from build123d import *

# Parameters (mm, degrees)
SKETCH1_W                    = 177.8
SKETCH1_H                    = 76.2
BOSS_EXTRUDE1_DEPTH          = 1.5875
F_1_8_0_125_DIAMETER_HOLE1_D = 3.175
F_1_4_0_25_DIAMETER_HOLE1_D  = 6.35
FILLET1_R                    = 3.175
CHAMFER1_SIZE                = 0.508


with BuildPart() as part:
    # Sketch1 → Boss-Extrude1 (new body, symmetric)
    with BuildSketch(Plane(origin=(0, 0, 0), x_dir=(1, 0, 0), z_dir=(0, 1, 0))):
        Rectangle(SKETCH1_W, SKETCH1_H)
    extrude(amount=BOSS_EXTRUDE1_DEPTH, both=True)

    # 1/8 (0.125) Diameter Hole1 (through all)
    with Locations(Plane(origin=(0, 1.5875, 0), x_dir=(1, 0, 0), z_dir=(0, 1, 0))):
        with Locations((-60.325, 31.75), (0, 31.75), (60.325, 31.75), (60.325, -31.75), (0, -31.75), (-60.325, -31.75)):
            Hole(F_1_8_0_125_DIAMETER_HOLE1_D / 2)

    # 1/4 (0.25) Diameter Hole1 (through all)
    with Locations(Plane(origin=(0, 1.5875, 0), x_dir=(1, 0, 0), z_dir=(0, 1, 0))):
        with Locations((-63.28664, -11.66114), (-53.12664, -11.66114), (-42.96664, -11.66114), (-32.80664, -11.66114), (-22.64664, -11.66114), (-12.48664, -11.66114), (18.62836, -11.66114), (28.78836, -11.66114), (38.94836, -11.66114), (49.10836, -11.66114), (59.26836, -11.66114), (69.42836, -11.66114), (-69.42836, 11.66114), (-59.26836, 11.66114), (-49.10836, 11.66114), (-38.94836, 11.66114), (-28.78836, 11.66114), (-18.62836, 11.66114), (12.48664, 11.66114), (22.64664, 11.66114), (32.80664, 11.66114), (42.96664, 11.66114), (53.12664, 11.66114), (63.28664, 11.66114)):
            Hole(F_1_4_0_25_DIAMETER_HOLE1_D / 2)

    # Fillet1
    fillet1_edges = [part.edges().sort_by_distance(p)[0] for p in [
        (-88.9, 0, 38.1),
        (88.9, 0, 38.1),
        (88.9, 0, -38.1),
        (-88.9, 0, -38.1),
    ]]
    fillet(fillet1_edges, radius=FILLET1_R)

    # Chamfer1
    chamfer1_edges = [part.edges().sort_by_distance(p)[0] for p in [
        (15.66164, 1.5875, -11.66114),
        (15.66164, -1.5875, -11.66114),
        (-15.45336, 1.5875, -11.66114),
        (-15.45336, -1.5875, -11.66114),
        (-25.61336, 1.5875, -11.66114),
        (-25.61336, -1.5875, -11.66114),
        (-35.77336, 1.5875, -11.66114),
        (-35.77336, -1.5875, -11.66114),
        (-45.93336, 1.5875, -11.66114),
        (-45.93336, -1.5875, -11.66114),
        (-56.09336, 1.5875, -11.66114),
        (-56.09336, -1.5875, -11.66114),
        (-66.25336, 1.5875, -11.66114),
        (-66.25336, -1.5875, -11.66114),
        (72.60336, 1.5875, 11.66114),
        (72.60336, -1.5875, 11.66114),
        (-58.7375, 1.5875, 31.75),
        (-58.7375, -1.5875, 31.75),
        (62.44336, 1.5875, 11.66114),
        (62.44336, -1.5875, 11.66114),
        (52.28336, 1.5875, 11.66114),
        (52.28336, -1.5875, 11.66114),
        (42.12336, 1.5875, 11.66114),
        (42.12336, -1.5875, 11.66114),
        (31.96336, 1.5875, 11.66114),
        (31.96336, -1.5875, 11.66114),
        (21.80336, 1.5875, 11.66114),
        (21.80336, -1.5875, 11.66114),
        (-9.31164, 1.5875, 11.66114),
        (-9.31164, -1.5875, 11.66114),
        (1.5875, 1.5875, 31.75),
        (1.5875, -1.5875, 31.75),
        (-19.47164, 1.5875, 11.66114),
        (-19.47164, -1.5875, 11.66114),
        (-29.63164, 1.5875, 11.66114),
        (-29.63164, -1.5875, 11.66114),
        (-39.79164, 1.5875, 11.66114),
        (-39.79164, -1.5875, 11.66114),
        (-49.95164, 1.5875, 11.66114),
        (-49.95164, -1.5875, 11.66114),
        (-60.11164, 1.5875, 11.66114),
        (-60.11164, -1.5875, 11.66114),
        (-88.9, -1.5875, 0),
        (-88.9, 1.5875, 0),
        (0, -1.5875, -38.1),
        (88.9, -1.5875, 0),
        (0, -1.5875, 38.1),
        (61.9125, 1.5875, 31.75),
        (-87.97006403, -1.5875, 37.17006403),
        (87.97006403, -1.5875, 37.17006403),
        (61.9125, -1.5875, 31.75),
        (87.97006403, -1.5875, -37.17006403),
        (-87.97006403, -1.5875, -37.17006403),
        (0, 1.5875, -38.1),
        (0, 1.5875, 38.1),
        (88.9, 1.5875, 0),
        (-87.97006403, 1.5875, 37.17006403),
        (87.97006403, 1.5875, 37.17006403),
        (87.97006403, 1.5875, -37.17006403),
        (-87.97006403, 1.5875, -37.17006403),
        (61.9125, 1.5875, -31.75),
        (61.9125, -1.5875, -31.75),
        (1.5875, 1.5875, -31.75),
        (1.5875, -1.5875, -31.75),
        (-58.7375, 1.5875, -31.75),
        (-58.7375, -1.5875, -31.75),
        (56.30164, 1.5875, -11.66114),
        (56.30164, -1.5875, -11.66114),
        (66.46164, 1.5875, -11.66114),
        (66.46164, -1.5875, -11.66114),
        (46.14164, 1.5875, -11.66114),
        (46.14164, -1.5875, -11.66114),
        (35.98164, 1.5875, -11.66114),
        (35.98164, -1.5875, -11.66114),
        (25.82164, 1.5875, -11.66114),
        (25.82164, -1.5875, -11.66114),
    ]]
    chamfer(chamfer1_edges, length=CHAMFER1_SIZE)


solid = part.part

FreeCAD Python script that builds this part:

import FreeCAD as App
import Part
import Sketcher
from FreeCAD import Vector
Q = App.Units.Quantity


def edges_at(feature, points):
    """Names of the edges that pass closest to the given points."""
    edges = feature.Shape.Edges
    near = lambda p: min(range(len(edges)), key=lambda i: edges[i].distToShape(Part.Vertex(*p))[0])
    return sorted({f"Edge{near(p) + 1}" for p in points})

doc = App.newDocument("Part")
body = doc.addObject("PartDesign::Body", "Body")

# Sketch on XZ plane
sketch1 = body.newObject("Sketcher::SketchObject", "Sketch")
sketch1.AttachmentSupport = (doc.getObject("XZ_Plane"), [""])
sketch1.MapMode = "FlatFace"
sketch1.addGeometry(Part.LineSegment(Vector(-88.9, -38.1, 0), Vector(-88.9, 38.1, 0)), False)
sketch1.addGeometry(Part.LineSegment(Vector(-88.9, 38.1, 0), Vector(88.9, 38.1, 0)), False)
sketch1.addGeometry(Part.LineSegment(Vector(88.9, 38.1, 0), Vector(88.9, -38.1, 0)), False)
sketch1.addGeometry(Part.LineSegment(Vector(88.9, -38.1, 0), Vector(-88.9, -38.1, 0)), False)
sketch1.addConstraint(Sketcher.Constraint("Coincident", 0, 2, 1, 1))
sketch1.addConstraint(Sketcher.Constraint("Coincident", 1, 2, 2, 1))
sketch1.addConstraint(Sketcher.Constraint("Coincident", 2, 2, 3, 1))
sketch1.addConstraint(Sketcher.Constraint("Coincident", 3, 2, 0, 1))
sketch1.addConstraint(Sketcher.Constraint("Vertical", 0))
sketch1.addConstraint(Sketcher.Constraint("Horizontal", 1))
sketch1.addConstraint(Sketcher.Constraint("Vertical", 2))
sketch1.addConstraint(Sketcher.Constraint("Horizontal", 3))
sketch1.addConstraint(Sketcher.Constraint("Symmetric", 0, 2, 2, 2, -1, 1))
sketch1.addConstraint(Sketcher.Constraint("DistanceX", 1, 1, 1, 2, Q("7 in")))
sketch1.addConstraint(Sketcher.Constraint("DistanceY", 0, 1, 0, 2, Q("3 in")))
pad1 = body.newObject("PartDesign::Pad", "Pad")
pad1.Profile = sketch1
pad1.Length = Q("0.125 in")
pad1.Midplane = True

# Sketch on XZ plane
sketch2 = body.newObject("Sketcher::SketchObject", "Sketch001")
sketch2.AttachmentSupport = (doc.getObject("XZ_Plane"), [""])
sketch2.MapMode = "FlatFace"
sketch2.AttachmentOffset = App.Placement(Vector(0, 0, -0.0625 * 25.4), App.Rotation())
sketch2.addGeometry(Part.Circle(Vector(-60.325, -31.75, 0), Vector(0, 0, 1), 1.5875), False)
sketch2.addGeometry(Part.Circle(Vector(0, -31.75, 0), Vector(0, 0, 1), 1.5875), False)
sketch2.addGeometry(Part.Circle(Vector(60.325, -31.75, 0), Vector(0, 0, 1), 1.5875), False)
sketch2.addGeometry(Part.Circle(Vector(60.325, 31.75, 0), Vector(0, 0, 1), 1.5875), False)
sketch2.addGeometry(Part.Circle(Vector(0, 31.75, 0), Vector(0, 0, 1), 1.5875), False)
sketch2.addGeometry(Part.Circle(Vector(-60.325, 31.75, 0), Vector(0, 0, 1), 1.5875), False)
sketch2.addConstraint(Sketcher.Constraint("Equal", 0, 1))
sketch2.addConstraint(Sketcher.Constraint("Equal", 1, 2))
sketch2.addConstraint(Sketcher.Constraint("Equal", 2, 3))
sketch2.addConstraint(Sketcher.Constraint("Equal", 3, 4))
sketch2.addConstraint(Sketcher.Constraint("Equal", 4, 5))
sketch2.addConstraint(Sketcher.Constraint("Symmetric", 0, 3, 3, 3, -1, 1))
sketch2.addConstraint(Sketcher.Constraint("Symmetric", 1, 3, 4, 3, -1, 1))
sketch2.addConstraint(Sketcher.Constraint("Symmetric", 2, 3, 5, 3, -1, 1))
sketch2.addConstraint(Sketcher.Constraint("Symmetric", 0, 3, 2, 3, -2))
sketch2.addConstraint(Sketcher.Constraint("PointOnObject", 1, 3, -2))
sketch2.addConstraint(Sketcher.Constraint("Horizontal", 0, 3, 1, 3))
sketch2.addConstraint(Sketcher.Constraint("Diameter", 0, Q("0.125 in")))
sketch2.addConstraint(Sketcher.Constraint("DistanceY", 2, 3, 3, 3, Q("2.5 in")))
sketch2.addConstraint(Sketcher.Constraint("DistanceX", 0, 3, 2, 3, Q("4.75 in")))
doc.recompute()
hole = body.newObject("PartDesign::Hole", "Hole")
hole.Profile = sketch2
hole.ThreadType = "None"
hole.Diameter = Q("0.125 in")
hole.DepthType = "ThroughAll"
hole.Reversed = True

# Sketch on XZ plane
sketch3 = body.newObject("Sketcher::SketchObject", "Sketch002")
sketch3.AttachmentSupport = (doc.getObject("XZ_Plane"), [""])
sketch3.MapMode = "FlatFace"
sketch3.AttachmentOffset = App.Placement(Vector(0, 0, -0.0625 * 25.4), App.Rotation())
sketch3.addGeometry(Part.Circle(Vector(-63.28664, 11.66114, 0), Vector(0, 0, 1), 3.175), False)
sketch3.addGeometry(Part.Circle(Vector(-53.12664, 11.66114, 0), Vector(0, 0, 1), 3.175), False)
sketch3.addGeometry(Part.Circle(Vector(-42.96664, 11.66114, 0), Vector(0, 0, 1), 3.175), False)
sketch3.addGeometry(Part.Circle(Vector(-32.80664, 11.66114, 0), Vector(0, 0, 1), 3.175), False)
sketch3.addGeometry(Part.Circle(Vector(-22.64664, 11.66114, 0), Vector(0, 0, 1), 3.175), False)
sketch3.addGeometry(Part.Circle(Vector(-12.48664, 11.66114, 0), Vector(0, 0, 1), 3.175), False)
sketch3.addGeometry(Part.Circle(Vector(18.62836, 11.66114, 0), Vector(0, 0, 1), 3.175), False)
sketch3.addGeometry(Part.Circle(Vector(28.78836, 11.66114, 0), Vector(0, 0, 1), 3.175), False)
sketch3.addGeometry(Part.Circle(Vector(38.94836, 11.66114, 0), Vector(0, 0, 1), 3.175), False)
sketch3.addGeometry(Part.Circle(Vector(49.10836, 11.66114, 0), Vector(0, 0, 1), 3.175), False)
sketch3.addGeometry(Part.Circle(Vector(59.26836, 11.66114, 0), Vector(0, 0, 1), 3.175), False)
sketch3.addGeometry(Part.Circle(Vector(69.42836, 11.66114, 0), Vector(0, 0, 1), 3.175), False)
sketch3.addGeometry(Part.Circle(Vector(-69.42836, -11.66114, 0), Vector(0, 0, 1), 3.175), False)
sketch3.addGeometry(Part.Circle(Vector(-59.26836, -11.66114, 0), Vector(0, 0, 1), 3.175), False)
sketch3.addGeometry(Part.Circle(Vector(-49.10836, -11.66114, 0), Vector(0, 0, 1), 3.175), False)
sketch3.addGeometry(Part.Circle(Vector(-38.94836, -11.66114, 0), Vector(0, 0, 1), 3.175), False)
sketch3.addGeometry(Part.Circle(Vector(-28.78836, -11.66114, 0), Vector(0, 0, 1), 3.175), False)
sketch3.addGeometry(Part.Circle(Vector(-18.62836, -11.66114, 0), Vector(0, 0, 1), 3.175), False)
sketch3.addGeometry(Part.Circle(Vector(12.48664, -11.66114, 0), Vector(0, 0, 1), 3.175), False)
sketch3.addGeometry(Part.Circle(Vector(22.64664, -11.66114, 0), Vector(0, 0, 1), 3.175), False)
sketch3.addGeometry(Part.Circle(Vector(32.80664, -11.66114, 0), Vector(0, 0, 1), 3.175), False)
sketch3.addGeometry(Part.Circle(Vector(42.96664, -11.66114, 0), Vector(0, 0, 1), 3.175), False)
sketch3.addGeometry(Part.Circle(Vector(53.12664, -11.66114, 0), Vector(0, 0, 1), 3.175), False)
sketch3.addGeometry(Part.Circle(Vector(63.28664, -11.66114, 0), Vector(0, 0, 1), 3.175), False)
sketch3.addConstraint(Sketcher.Constraint("Equal", 0, 1))
sketch3.addConstraint(Sketcher.Constraint("Equal", 1, 2))
sketch3.addConstraint(Sketcher.Constraint("Equal", 2, 3))
sketch3.addConstraint(Sketcher.Constraint("Equal", 3, 4))
sketch3.addConstraint(Sketcher.Constraint("Equal", 4, 5))
sketch3.addConstraint(Sketcher.Constraint("Equal", 5, 6))
sketch3.addConstraint(Sketcher.Constraint("Equal", 6, 7))
sketch3.addConstraint(Sketcher.Constraint("Equal", 7, 8))
sketch3.addConstraint(Sketcher.Constraint("Equal", 8, 9))
sketch3.addConstraint(Sketcher.Constraint("Equal", 9, 10))
sketch3.addConstraint(Sketcher.Constraint("Equal", 10, 11))
sketch3.addConstraint(Sketcher.Constraint("Equal", 11, 12))
sketch3.addConstraint(Sketcher.Constraint("Equal", 12, 13))
sketch3.addConstraint(Sketcher.Constraint("Equal", 13, 14))
sketch3.addConstraint(Sketcher.Constraint("Equal", 14, 15))
sketch3.addConstraint(Sketcher.Constraint("Equal", 15, 16))
sketch3.addConstraint(Sketcher.Constraint("Equal", 16, 17))
sketch3.addConstraint(Sketcher.Constraint("Equal", 17, 18))
sketch3.addConstraint(Sketcher.Constraint("Equal", 18, 19))
sketch3.addConstraint(Sketcher.Constraint("Equal", 19, 20))
sketch3.addConstraint(Sketcher.Constraint("Equal", 20, 21))
sketch3.addConstraint(Sketcher.Constraint("Equal", 21, 22))
sketch3.addConstraint(Sketcher.Constraint("Equal", 22, 23))
sketch3.addConstraint(Sketcher.Constraint("Symmetric", 11, 3, 12, 3, -1, 1))
sketch3.addConstraint(Sketcher.Constraint("Symmetric", 10, 3, 13, 3, -1, 1))
sketch3.addConstraint(Sketcher.Constraint("Symmetric", 9, 3, 14, 3, -1, 1))
sketch3.addConstraint(Sketcher.Constraint("Symmetric", 8, 3, 15, 3, -1, 1))
sketch3.addConstraint(Sketcher.Constraint("Symmetric", 7, 3, 16, 3, -1, 1))
sketch3.addConstraint(Sketcher.Constraint("Symmetric", 6, 3, 17, 3, -1, 1))
sketch3.addConstraint(Sketcher.Constraint("Symmetric", 5, 3, 18, 3, -1, 1))
sketch3.addConstraint(Sketcher.Constraint("Symmetric", 4, 3, 19, 3, -1, 1))
sketch3.addConstraint(Sketcher.Constraint("Symmetric", 3, 3, 20, 3, -1, 1))
sketch3.addConstraint(Sketcher.Constraint("Symmetric", 2, 3, 21, 3, -1, 1))
sketch3.addConstraint(Sketcher.Constraint("Symmetric", 1, 3, 22, 3, -1, 1))
sketch3.addConstraint(Sketcher.Constraint("Symmetric", 0, 3, 23, 3, -1, 1))
sketch3.addConstraint(Sketcher.Constraint("Horizontal", 0, 3, 1, 3))
sketch3.addConstraint(Sketcher.Constraint("Horizontal", 1, 3, 2, 3))
sketch3.addConstraint(Sketcher.Constraint("Horizontal", 2, 3, 3, 3))
sketch3.addConstraint(Sketcher.Constraint("Horizontal", 3, 3, 4, 3))
sketch3.addConstraint(Sketcher.Constraint("Horizontal", 4, 3, 5, 3))
sketch3.addConstraint(Sketcher.Constraint("Horizontal", 5, 3, 6, 3))
sketch3.addConstraint(Sketcher.Constraint("Horizontal", 6, 3, 7, 3))
sketch3.addConstraint(Sketcher.Constraint("Horizontal", 7, 3, 8, 3))
sketch3.addConstraint(Sketcher.Constraint("Horizontal", 8, 3, 9, 3))
sketch3.addConstraint(Sketcher.Constraint("Horizontal", 9, 3, 10, 3))
sketch3.addConstraint(Sketcher.Constraint("Horizontal", 10, 3, 11, 3))
sketch3.addConstraint(Sketcher.Constraint("Diameter", 0, Q("0.25 in")))
sketch3.addConstraint(Sketcher.Constraint("DistanceX", 0, 3, 5, 3, Q("2 in")))
sketch3.addConstraint(Sketcher.Constraint("DistanceX", 6, 3, 11, 3, Q("2 in")))
sketch3.addConstraint(Sketcher.Constraint("DistanceX", 0, 3, 1, 3, Q("0.4 in")))
sketch3.addConstraint(Sketcher.Constraint("DistanceX", 1, 3, 2, 3, Q("0.4 in")))
sketch3.addConstraint(Sketcher.Constraint("DistanceX", 2, 3, 3, 3, Q("0.4 in")))
sketch3.addConstraint(Sketcher.Constraint("DistanceX", 3, 3, 4, 3, Q("0.4 in")))
sketch3.addConstraint(Sketcher.Constraint("DistanceX", 6, 3, 7, 3, Q("0.4 in")))
sketch3.addConstraint(Sketcher.Constraint("DistanceX", 7, 3, 8, 3, Q("0.4 in")))
sketch3.addConstraint(Sketcher.Constraint("DistanceX", 8, 3, 9, 3, Q("0.4 in")))
sketch3.addConstraint(Sketcher.Constraint("DistanceX", 9, 3, 10, 3, Q("0.4 in")))
sketch3.addConstraint(Sketcher.Constraint("DistanceX", 5, 3, 6, 3, Q("1.225 in")))
sketch3.addConstraint(Sketcher.Constraint("DistanceX", 0, 3, -1, 1, Q("2.4916 in")))
sketch3.addConstraint(Sketcher.Constraint("DistanceY", -1, 1, 0, 3, Q("0.4591 in")))
doc.recompute()
hole2 = body.newObject("PartDesign::Hole", "Hole001")
hole2.Profile = sketch3
hole2.ThreadType = "None"
hole2.Diameter = Q("0.25 in")
hole2.DepthType = "ThroughAll"
hole2.Reversed = True
doc.recompute()

fillet = body.newObject("PartDesign::Fillet", "Fillet")
fillet.Base = (hole2, edges_at(hole2, [
    (-88.9, 0, 38.1),
    (88.9, 0, 38.1),
    (88.9, 0, -38.1),
    (-88.9, 0, -38.1),
]))
fillet.Radius = Q("0.125 in")
doc.recompute()

chamfer = body.newObject("PartDesign::Chamfer", "Chamfer")
chamfer.Base = (fillet, edges_at(fillet, [
    (15.662, 1.587, -11.661),
    (15.662, -1.587, -11.661),
    (-15.453, 1.587, -11.661),
    (-15.453, -1.587, -11.661),
    (-25.613, 1.587, -11.661),
    (-25.613, -1.587, -11.661),
    (-35.773, 1.587, -11.661),
    (-35.773, -1.587, -11.661),
    (-45.933, 1.587, -11.661),
    (-45.933, -1.587, -11.661),
    (-56.093, 1.587, -11.661),
    (-56.093, -1.587, -11.661),
    (-66.253, 1.587, -11.661),
    (-66.253, -1.587, -11.661),
    (72.603, 1.587, 11.661),
    (72.603, -1.587, 11.661),
    (-58.737, 1.587, 31.75),
    (-58.737, -1.587, 31.75),
    (62.443, 1.587, 11.661),
    (62.443, -1.587, 11.661),
    (52.283, 1.587, 11.661),
    (52.283, -1.587, 11.661),
    (42.123, 1.587, 11.661),
    (42.123, -1.587, 11.661),
    (31.963, 1.587, 11.661),
    (31.963, -1.587, 11.661),
    (21.803, 1.587, 11.661),
    (21.803, -1.587, 11.661),
    (-9.312, 1.587, 11.661),
    (-9.312, -1.587, 11.661),
    (1.587, 1.587, 31.75),
    (1.587, -1.587, 31.75),
    (-19.472, 1.587, 11.661),
    (-19.472, -1.587, 11.661),
    (-29.632, 1.587, 11.661),
    (-29.632, -1.587, 11.661),
    (-39.792, 1.587, 11.661),
    (-39.792, -1.587, 11.661),
    (-49.952, 1.587, 11.661),
    (-49.952, -1.587, 11.661),
    (-60.112, 1.587, 11.661),
    (-60.112, -1.587, 11.661),
    (-88.9, -1.587, 0),
    (-88.9, 1.587, 0),
    (0, -1.587, -38.1),
    (88.9, -1.587, 0),
    (0, -1.587, 38.1),
    (61.913, 1.587, 31.75),
    (-87.97, -1.587, 37.17),
    (87.97, -1.587, 37.17),
    (61.913, -1.587, 31.75),
    (87.97, -1.587, -37.17),
    (-87.97, -1.587, -37.17),
    (0, 1.587, -38.1),
    (0, 1.587, 38.1),
    (88.9, 1.587, 0),
    (-87.97, 1.587, 37.17),
    (87.97, 1.587, 37.17),
    (87.97, 1.587, -37.17),
    (-87.97, 1.587, -37.17),
    (61.913, 1.587, -31.75),
    (61.913, -1.587, -31.75),
    (1.587, 1.587, -31.75),
    (1.587, -1.587, -31.75),
    (-58.737, 1.587, -31.75),
    (-58.737, -1.587, -31.75),
    (56.302, 1.587, -11.661),
    (56.302, -1.587, -11.661),
    (66.462, 1.587, -11.661),
    (66.462, -1.587, -11.661),
    (46.142, 1.587, -11.661),
    (46.142, -1.587, -11.661),
    (35.982, 1.587, -11.661),
    (35.982, -1.587, -11.661),
    (25.822, 1.587, -11.661),
    (25.822, -1.587, -11.661),
]))
chamfer.Size = Q("0.02 in")

doc.recompute()
